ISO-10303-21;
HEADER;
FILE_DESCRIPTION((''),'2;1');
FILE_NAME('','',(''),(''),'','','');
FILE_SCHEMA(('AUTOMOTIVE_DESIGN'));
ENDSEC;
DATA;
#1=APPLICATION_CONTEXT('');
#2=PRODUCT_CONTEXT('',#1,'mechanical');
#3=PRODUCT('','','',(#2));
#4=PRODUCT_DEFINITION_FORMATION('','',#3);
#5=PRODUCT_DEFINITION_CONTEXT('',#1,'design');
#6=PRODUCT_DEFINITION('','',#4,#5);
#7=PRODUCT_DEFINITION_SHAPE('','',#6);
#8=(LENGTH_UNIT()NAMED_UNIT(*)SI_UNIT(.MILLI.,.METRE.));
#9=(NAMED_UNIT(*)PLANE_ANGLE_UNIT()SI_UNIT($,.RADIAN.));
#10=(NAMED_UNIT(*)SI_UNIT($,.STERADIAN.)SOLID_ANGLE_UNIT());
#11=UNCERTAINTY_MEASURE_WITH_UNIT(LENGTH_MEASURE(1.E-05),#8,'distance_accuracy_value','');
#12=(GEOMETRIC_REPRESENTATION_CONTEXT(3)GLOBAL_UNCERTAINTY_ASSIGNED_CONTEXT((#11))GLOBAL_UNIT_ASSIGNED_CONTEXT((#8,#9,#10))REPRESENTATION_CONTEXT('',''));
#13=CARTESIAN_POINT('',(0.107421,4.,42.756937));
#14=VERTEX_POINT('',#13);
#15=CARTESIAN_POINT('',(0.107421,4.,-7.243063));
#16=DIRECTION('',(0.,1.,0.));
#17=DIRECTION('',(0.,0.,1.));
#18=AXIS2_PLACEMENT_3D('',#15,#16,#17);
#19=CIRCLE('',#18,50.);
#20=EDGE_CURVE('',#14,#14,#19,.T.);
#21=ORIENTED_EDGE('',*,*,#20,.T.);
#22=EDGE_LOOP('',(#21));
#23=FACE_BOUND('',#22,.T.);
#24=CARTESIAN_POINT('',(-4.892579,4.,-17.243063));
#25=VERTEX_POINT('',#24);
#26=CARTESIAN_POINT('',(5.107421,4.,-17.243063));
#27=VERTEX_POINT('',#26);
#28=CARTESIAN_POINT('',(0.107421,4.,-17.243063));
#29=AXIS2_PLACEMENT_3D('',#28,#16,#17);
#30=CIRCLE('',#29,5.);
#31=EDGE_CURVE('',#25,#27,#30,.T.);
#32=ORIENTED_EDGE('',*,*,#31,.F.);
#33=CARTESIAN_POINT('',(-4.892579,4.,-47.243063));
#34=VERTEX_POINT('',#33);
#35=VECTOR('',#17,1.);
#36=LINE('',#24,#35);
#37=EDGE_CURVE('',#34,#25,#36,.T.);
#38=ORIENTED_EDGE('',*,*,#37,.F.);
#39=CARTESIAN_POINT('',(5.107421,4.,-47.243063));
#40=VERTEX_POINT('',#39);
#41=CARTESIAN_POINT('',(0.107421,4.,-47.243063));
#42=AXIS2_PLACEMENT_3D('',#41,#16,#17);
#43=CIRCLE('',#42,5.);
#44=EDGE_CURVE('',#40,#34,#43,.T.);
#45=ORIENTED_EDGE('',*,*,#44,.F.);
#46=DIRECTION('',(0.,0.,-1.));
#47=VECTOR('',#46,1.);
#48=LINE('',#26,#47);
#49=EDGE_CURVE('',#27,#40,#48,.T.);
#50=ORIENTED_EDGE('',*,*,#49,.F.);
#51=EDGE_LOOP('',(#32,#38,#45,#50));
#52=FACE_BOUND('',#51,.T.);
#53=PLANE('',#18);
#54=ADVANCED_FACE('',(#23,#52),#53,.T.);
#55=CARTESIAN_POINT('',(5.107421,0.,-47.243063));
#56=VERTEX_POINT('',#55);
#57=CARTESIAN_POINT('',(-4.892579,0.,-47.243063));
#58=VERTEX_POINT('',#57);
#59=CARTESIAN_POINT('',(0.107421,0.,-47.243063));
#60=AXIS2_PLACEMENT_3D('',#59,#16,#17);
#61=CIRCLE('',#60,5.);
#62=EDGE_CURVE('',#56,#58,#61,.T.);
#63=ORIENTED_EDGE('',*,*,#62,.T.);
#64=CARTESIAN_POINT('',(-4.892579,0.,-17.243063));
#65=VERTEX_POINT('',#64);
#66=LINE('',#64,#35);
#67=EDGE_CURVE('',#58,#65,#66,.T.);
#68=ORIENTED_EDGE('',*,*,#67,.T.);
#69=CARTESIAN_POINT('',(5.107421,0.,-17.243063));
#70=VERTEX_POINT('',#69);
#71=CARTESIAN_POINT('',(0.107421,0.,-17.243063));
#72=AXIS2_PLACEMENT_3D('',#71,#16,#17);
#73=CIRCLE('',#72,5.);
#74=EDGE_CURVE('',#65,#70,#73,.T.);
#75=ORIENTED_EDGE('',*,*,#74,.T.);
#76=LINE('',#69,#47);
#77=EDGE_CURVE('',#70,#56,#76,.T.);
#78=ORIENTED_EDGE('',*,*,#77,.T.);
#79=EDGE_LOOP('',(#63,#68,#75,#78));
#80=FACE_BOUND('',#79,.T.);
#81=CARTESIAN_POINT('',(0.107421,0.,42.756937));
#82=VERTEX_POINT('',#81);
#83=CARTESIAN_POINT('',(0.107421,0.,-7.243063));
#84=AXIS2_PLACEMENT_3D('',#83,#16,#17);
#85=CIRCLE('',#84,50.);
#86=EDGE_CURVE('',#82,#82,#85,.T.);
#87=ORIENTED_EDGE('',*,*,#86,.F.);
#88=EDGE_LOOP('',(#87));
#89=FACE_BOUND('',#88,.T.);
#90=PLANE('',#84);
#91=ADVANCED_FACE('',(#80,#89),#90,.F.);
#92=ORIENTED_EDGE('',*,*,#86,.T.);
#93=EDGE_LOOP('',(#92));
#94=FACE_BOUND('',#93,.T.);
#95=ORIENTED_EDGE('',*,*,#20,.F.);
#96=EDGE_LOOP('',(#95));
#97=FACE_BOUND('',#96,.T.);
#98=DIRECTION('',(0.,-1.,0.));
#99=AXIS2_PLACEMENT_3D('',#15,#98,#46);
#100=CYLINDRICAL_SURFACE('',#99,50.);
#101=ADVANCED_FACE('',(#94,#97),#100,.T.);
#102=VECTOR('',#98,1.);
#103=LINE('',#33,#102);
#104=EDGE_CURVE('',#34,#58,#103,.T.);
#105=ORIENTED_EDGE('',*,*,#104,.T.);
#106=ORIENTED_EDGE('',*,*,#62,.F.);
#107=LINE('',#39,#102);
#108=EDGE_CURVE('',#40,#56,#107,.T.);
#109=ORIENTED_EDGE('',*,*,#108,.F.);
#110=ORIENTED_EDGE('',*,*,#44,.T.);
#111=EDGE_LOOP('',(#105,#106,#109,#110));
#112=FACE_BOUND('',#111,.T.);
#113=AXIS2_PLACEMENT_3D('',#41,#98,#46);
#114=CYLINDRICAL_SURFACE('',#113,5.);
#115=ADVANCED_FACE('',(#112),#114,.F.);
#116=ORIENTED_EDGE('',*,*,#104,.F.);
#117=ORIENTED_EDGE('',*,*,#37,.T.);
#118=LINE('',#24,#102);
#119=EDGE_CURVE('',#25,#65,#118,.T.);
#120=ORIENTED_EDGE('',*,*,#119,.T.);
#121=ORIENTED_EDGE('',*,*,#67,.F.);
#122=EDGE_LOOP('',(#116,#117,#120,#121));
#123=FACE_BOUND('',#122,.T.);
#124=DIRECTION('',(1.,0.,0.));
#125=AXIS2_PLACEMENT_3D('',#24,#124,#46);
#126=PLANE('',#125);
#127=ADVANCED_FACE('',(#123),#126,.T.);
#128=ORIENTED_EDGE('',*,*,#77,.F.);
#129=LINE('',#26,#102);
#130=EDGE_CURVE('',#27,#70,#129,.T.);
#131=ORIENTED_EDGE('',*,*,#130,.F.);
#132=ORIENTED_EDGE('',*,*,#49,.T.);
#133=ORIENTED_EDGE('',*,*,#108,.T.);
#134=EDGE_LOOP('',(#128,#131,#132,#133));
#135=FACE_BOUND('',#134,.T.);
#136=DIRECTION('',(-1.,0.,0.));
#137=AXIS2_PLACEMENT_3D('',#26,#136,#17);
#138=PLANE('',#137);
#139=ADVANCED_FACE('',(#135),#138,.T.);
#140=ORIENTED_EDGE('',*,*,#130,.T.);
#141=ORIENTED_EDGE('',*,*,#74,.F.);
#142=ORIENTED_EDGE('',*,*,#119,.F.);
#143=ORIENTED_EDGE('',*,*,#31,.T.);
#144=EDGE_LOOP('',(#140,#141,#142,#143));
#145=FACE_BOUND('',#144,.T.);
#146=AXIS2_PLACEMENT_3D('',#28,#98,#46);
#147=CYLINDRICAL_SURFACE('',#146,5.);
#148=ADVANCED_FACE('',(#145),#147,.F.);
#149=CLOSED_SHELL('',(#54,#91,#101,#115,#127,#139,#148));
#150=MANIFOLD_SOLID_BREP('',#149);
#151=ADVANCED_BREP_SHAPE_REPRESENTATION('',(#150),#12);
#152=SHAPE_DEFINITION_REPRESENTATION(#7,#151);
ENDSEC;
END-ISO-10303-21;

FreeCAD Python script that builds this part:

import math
import FreeCAD as App
import Part
import Sketcher
from FreeCAD import Vector

doc = App.newDocument("Part")
body = doc.addObject("PartDesign::Body", "Body")

# Sketch on XZ plane
sketch1 = doc.addObject("Sketcher::SketchObject", "Sketch")
body.addObject(sketch1)
sketch1.AttachmentSupport = (doc.XZ_Plane, [""])
sketch1.MapMode = "FlatFace"
sketch1.addGeometry(Part.Circle(Vector(0, -7, 0), Vector(0, 0, 1), 50), False)
sketch1.addGeometry(Part.ArcOfCircle(Part.Circle(Vector(0, -17, 0), Vector(0, 0, 1), 5), math.radians(0), math.radians(180)), False)
sketch1.addGeometry(Part.LineSegment(Vector(-5, -17, 0), Vector(-5, -47, 0)), False)
sketch1.addGeometry(Part.ArcOfCircle(Part.Circle(Vector(0, -47, 0), Vector(0, 0, 1), 5), math.radians(180), math.radians(360)), False)
sketch1.addGeometry(Part.LineSegment(Vector(5, -47, 0), Vector(5, -17, 0)), False)
sketch1.addConstraint(Sketcher.Constraint("Tangent", 1, 2, 2, 1))
sketch1.addConstraint(Sketcher.Constraint("Tangent", 2, 2, 3, 1))
sketch1.addConstraint(Sketcher.Constraint("Tangent", 3, 2, 4, 1))
sketch1.addConstraint(Sketcher.Constraint("Tangent", 4, 2, 1, 1))
sketch1.addConstraint(Sketcher.Constraint("Vertical", 2))
sketch1.addConstraint(Sketcher.Constraint("Vertical", 4))
sketch1.addConstraint(Sketcher.Constraint("Vertical", 0, 3, 1, 3))
sketch1.addConstraint(Sketcher.Constraint("Diameter", 0, 100.0))
sketch1.addConstraint(Sketcher.Constraint("Radius", 1, 5.0))
sketch1.addConstraint(Sketcher.Constraint("DistanceY", 2, 2, 2, 1, 30.0))
sketch1.addConstraint(Sketcher.Constraint("DistanceY", 1, 3, 0, 3, 10.0))
sketch1.addConstraint(Sketcher.Constraint("DistanceX", -1, 1, 0, 3, 0.107421))
sketch1.addConstraint(Sketcher.Constraint("DistanceY", 0, 3, -1, 1, 7.243063))
pad1 = doc.addObject("PartDesign::Pad", "Pad")
body.addObject(pad1)
pad1.Profile = sketch1
pad1.Length = 4
pad1.Reversed = True

doc.recompute()
